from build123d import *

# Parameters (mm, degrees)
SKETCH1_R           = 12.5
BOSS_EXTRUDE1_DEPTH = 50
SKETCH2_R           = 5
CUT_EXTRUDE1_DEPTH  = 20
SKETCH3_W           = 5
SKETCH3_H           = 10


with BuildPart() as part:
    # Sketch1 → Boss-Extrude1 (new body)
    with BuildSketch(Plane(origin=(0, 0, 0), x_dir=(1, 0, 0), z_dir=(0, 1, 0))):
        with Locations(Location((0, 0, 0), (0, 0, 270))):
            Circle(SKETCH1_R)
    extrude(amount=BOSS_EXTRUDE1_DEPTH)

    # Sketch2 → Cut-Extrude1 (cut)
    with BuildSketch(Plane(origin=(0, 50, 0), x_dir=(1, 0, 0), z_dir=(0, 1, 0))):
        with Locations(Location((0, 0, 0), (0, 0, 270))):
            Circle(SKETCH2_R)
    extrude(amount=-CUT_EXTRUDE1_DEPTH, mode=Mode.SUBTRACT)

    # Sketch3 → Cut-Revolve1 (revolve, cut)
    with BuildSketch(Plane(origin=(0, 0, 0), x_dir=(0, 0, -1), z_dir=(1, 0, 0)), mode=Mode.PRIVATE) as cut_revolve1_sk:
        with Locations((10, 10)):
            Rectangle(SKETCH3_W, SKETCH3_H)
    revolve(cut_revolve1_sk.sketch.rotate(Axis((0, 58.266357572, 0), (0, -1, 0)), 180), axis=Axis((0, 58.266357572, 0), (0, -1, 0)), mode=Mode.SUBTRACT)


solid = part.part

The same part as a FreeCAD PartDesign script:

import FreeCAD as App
import Part
import Sketcher

V = App.Vector
Q = App.Units.Quantity


def add_polygon(sketch, points):
    """Adds a closed chain of lines whose ends are joined by coincident constraints."""
    first, n = sketch.GeometryCount, len(points)
    for a, b in zip(points, points[1:] + points[:1]):
        sketch.addGeometry(Part.LineSegment(App.Vector(*a, 0), App.Vector(*b, 0)), False)
    for i in range(n):
        sketch.addConstraint(Sketcher.Constraint("Coincident", first + i, 2, first + (i + 1) % n, 1))

doc = App.newDocument("Part")
params = doc.addObject("Spreadsheet::Sheet", "Params")
for row, (alias, value) in enumerate([
    ("sketch1_diameter", "25 mm"),
    ("pad1_length", "50 mm"),
    ("sketch2_diameter", "10 mm"),
    ("pocket1_length", "20 mm"),
    ("sketch3_width", "10 mm"),
    ("sketch3_height", "5 mm"),
    ("groove_angle", "360 deg"),
], start=1):
    params.set(f"A{row}", alias)
    params.set(f"B{row}", "=" + value)
    params.setAlias(f"B{row}", alias)

body = doc.addObject("PartDesign::Body", "Body")

# Sketch on XZ plane
sketch1 = doc.addObject("Sketcher::SketchObject", "Sketch")
body.addObject(sketch1)
sketch1.AttachmentSupport = (doc.XZ_Plane, [""])
sketch1.MapMode = "FlatFace"
sketch1.addGeometry(Part.Circle(V(0, 0, 0), V(0, 0, 1), 12), False)
sketch1.addConstraint(Sketcher.Constraint("Coincident", 0, 3, -1, 1))
sketch1.addConstraint(Sketcher.Constraint("Diameter", 0, Q("25 mm")))
sketch1.setExpression("Constraints[1]", "Params.sketch1_diameter")
pad1 = doc.addObject("PartDesign::Pad", "Pad")
body.addObject(pad1)
pad1.Profile = sketch1
pad1.setExpression("Length", "Params.pad1_length")
pad1.Reversed = True

# Sketch on XZ plane
sketch2 = doc.addObject("Sketcher::SketchObject", "Sketch001")
body.addObject(sketch2)
sketch2.AttachmentSupport = (doc.XZ_Plane, [""])
sketch2.MapMode = "FlatFace"
sketch2.AttachmentOffset = App.Placement(V(0, 0, -50), App.Rotation())
sketch2.addGeometry(Part.Circle(V(0, 0, 0), V(0, 0, 1), 5), False)
sketch2.addConstraint(Sketcher.Constraint("Coincident", 0, 3, -1, 1))
sketch2.addConstraint(Sketcher.Constraint("Diameter", 0, Q("10 mm")))
sketch2.setExpression("Constraints[1]", "Params.sketch2_diameter")
pocket1 = doc.addObject("PartDesign::Pocket", "Pocket")
body.addObject(pocket1)
pocket1.Profile = sketch2
pocket1.setExpression("Length", "Params.pocket1_length")
pocket1.Reversed = True

# Sketch on YZ plane
sketch3 = doc.addObject("Sketcher::SketchObject", "Sketch002")
body.addObject(sketch3)
sketch3.AttachmentSupport = (doc.YZ_Plane, [""])
sketch3.MapMode = "FlatFace"
add_polygon(sketch3, [(15, -8), (5, -8), (5, -12), (15, -12)])  # lines 0-3
sketch3.addConstraint(Sketcher.Constraint("Horizontal", 0))
sketch3.addConstraint(Sketcher.Constraint("Vertical", 1))
sketch3.addConstraint(Sketcher.Constraint("Horizontal", 2))
sketch3.addConstraint(Sketcher.Constraint("Vertical", 3))
sketch3.addConstraint(Sketcher.Constraint("DistanceX", 0, 2, 0, 1, Q("10 mm")))
sketch3.addConstraint(Sketcher.Constraint("DistanceY", 1, 2, 1, 1, Q("5 mm")))
sketch3.addConstraint(Sketcher.Constraint("DistanceX", -1, 1, 0, 2, Q("5 mm")))
sketch3.addConstraint(Sketcher.Constraint("DistanceY", 0, 2, -1, 1, Q("7.5 mm")))
sketch3.setExpression("Constraints[8]", "Params.sketch3_width")
sketch3.setExpression("Constraints[9]", "Params.sketch3_height")
groove = doc.addObject("PartDesign::Groove", "Groove")
body.addObject(groove)
groove.Profile = sketch3
groove.ReferenceAxis = (sketch3, ["H_Axis"])
groove.setExpression("Angle", "Params.groove_angle")

doc.recompute()
